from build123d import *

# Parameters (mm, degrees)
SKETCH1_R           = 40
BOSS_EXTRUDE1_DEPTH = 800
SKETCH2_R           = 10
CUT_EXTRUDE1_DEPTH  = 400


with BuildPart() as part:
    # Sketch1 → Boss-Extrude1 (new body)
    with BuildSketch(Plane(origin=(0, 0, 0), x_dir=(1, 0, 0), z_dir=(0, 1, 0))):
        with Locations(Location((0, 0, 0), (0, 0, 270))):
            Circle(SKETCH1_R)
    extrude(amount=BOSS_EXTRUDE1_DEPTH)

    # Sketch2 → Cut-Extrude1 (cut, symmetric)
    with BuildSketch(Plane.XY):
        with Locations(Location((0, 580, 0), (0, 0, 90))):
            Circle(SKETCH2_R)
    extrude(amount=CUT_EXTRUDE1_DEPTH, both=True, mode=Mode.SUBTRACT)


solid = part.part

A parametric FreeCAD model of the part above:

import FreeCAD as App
import Part
import Sketcher

doc = App.newDocument("Part")
body = doc.addObject("PartDesign::Body", "Body")

# Sketch on XZ plane
sketch1 = body.newObject("Sketcher::SketchObject", "Sketch")
sketch1.AttachmentSupport = (doc.getObject("XZ_Plane"), [""])
sketch1.MapMode = "FlatFace"
sketch1.addGeometry(Part.Circle(App.Vector(0, 0, 0), App.Vector(0, 0, 1), 40), False)
sketch1.addConstraint([
    Sketcher.Constraint("Coincident", 0, 3, -1, 1),
    Sketcher.Constraint("Diameter", 0, 80.0),
])
pad1 = body.newObject("PartDesign::Pad", "Pad")
pad1.Profile = sketch1
pad1.Length = 800
pad1.Reversed = True

# Sketch on XY plane
sketch2 = body.newObject("Sketcher::SketchObject", "Sketch001")
sketch2.AttachmentSupport = (doc.getObject("XY_Plane"), [""])
sketch2.MapMode = "FlatFace"
sketch2.addGeometry(Part.Circle(App.Vector(0, 580, 0), App.Vector(0, 0, 1), 10), False)
sketch2.addConstraint([
    Sketcher.Constraint("PointOnObject", 0, 3, -2),
    Sketcher.Constraint("Diameter", 0, 20.0),
    Sketcher.Constraint("DistanceY", -1, 1, 0, 3, 580.0),
])
pocket1 = body.newObject("PartDesign::Pocket", "Pocket")
pocket1.Profile = sketch2
pocket1.Length = 800
pocket1.Midplane = True

doc.recompute()
